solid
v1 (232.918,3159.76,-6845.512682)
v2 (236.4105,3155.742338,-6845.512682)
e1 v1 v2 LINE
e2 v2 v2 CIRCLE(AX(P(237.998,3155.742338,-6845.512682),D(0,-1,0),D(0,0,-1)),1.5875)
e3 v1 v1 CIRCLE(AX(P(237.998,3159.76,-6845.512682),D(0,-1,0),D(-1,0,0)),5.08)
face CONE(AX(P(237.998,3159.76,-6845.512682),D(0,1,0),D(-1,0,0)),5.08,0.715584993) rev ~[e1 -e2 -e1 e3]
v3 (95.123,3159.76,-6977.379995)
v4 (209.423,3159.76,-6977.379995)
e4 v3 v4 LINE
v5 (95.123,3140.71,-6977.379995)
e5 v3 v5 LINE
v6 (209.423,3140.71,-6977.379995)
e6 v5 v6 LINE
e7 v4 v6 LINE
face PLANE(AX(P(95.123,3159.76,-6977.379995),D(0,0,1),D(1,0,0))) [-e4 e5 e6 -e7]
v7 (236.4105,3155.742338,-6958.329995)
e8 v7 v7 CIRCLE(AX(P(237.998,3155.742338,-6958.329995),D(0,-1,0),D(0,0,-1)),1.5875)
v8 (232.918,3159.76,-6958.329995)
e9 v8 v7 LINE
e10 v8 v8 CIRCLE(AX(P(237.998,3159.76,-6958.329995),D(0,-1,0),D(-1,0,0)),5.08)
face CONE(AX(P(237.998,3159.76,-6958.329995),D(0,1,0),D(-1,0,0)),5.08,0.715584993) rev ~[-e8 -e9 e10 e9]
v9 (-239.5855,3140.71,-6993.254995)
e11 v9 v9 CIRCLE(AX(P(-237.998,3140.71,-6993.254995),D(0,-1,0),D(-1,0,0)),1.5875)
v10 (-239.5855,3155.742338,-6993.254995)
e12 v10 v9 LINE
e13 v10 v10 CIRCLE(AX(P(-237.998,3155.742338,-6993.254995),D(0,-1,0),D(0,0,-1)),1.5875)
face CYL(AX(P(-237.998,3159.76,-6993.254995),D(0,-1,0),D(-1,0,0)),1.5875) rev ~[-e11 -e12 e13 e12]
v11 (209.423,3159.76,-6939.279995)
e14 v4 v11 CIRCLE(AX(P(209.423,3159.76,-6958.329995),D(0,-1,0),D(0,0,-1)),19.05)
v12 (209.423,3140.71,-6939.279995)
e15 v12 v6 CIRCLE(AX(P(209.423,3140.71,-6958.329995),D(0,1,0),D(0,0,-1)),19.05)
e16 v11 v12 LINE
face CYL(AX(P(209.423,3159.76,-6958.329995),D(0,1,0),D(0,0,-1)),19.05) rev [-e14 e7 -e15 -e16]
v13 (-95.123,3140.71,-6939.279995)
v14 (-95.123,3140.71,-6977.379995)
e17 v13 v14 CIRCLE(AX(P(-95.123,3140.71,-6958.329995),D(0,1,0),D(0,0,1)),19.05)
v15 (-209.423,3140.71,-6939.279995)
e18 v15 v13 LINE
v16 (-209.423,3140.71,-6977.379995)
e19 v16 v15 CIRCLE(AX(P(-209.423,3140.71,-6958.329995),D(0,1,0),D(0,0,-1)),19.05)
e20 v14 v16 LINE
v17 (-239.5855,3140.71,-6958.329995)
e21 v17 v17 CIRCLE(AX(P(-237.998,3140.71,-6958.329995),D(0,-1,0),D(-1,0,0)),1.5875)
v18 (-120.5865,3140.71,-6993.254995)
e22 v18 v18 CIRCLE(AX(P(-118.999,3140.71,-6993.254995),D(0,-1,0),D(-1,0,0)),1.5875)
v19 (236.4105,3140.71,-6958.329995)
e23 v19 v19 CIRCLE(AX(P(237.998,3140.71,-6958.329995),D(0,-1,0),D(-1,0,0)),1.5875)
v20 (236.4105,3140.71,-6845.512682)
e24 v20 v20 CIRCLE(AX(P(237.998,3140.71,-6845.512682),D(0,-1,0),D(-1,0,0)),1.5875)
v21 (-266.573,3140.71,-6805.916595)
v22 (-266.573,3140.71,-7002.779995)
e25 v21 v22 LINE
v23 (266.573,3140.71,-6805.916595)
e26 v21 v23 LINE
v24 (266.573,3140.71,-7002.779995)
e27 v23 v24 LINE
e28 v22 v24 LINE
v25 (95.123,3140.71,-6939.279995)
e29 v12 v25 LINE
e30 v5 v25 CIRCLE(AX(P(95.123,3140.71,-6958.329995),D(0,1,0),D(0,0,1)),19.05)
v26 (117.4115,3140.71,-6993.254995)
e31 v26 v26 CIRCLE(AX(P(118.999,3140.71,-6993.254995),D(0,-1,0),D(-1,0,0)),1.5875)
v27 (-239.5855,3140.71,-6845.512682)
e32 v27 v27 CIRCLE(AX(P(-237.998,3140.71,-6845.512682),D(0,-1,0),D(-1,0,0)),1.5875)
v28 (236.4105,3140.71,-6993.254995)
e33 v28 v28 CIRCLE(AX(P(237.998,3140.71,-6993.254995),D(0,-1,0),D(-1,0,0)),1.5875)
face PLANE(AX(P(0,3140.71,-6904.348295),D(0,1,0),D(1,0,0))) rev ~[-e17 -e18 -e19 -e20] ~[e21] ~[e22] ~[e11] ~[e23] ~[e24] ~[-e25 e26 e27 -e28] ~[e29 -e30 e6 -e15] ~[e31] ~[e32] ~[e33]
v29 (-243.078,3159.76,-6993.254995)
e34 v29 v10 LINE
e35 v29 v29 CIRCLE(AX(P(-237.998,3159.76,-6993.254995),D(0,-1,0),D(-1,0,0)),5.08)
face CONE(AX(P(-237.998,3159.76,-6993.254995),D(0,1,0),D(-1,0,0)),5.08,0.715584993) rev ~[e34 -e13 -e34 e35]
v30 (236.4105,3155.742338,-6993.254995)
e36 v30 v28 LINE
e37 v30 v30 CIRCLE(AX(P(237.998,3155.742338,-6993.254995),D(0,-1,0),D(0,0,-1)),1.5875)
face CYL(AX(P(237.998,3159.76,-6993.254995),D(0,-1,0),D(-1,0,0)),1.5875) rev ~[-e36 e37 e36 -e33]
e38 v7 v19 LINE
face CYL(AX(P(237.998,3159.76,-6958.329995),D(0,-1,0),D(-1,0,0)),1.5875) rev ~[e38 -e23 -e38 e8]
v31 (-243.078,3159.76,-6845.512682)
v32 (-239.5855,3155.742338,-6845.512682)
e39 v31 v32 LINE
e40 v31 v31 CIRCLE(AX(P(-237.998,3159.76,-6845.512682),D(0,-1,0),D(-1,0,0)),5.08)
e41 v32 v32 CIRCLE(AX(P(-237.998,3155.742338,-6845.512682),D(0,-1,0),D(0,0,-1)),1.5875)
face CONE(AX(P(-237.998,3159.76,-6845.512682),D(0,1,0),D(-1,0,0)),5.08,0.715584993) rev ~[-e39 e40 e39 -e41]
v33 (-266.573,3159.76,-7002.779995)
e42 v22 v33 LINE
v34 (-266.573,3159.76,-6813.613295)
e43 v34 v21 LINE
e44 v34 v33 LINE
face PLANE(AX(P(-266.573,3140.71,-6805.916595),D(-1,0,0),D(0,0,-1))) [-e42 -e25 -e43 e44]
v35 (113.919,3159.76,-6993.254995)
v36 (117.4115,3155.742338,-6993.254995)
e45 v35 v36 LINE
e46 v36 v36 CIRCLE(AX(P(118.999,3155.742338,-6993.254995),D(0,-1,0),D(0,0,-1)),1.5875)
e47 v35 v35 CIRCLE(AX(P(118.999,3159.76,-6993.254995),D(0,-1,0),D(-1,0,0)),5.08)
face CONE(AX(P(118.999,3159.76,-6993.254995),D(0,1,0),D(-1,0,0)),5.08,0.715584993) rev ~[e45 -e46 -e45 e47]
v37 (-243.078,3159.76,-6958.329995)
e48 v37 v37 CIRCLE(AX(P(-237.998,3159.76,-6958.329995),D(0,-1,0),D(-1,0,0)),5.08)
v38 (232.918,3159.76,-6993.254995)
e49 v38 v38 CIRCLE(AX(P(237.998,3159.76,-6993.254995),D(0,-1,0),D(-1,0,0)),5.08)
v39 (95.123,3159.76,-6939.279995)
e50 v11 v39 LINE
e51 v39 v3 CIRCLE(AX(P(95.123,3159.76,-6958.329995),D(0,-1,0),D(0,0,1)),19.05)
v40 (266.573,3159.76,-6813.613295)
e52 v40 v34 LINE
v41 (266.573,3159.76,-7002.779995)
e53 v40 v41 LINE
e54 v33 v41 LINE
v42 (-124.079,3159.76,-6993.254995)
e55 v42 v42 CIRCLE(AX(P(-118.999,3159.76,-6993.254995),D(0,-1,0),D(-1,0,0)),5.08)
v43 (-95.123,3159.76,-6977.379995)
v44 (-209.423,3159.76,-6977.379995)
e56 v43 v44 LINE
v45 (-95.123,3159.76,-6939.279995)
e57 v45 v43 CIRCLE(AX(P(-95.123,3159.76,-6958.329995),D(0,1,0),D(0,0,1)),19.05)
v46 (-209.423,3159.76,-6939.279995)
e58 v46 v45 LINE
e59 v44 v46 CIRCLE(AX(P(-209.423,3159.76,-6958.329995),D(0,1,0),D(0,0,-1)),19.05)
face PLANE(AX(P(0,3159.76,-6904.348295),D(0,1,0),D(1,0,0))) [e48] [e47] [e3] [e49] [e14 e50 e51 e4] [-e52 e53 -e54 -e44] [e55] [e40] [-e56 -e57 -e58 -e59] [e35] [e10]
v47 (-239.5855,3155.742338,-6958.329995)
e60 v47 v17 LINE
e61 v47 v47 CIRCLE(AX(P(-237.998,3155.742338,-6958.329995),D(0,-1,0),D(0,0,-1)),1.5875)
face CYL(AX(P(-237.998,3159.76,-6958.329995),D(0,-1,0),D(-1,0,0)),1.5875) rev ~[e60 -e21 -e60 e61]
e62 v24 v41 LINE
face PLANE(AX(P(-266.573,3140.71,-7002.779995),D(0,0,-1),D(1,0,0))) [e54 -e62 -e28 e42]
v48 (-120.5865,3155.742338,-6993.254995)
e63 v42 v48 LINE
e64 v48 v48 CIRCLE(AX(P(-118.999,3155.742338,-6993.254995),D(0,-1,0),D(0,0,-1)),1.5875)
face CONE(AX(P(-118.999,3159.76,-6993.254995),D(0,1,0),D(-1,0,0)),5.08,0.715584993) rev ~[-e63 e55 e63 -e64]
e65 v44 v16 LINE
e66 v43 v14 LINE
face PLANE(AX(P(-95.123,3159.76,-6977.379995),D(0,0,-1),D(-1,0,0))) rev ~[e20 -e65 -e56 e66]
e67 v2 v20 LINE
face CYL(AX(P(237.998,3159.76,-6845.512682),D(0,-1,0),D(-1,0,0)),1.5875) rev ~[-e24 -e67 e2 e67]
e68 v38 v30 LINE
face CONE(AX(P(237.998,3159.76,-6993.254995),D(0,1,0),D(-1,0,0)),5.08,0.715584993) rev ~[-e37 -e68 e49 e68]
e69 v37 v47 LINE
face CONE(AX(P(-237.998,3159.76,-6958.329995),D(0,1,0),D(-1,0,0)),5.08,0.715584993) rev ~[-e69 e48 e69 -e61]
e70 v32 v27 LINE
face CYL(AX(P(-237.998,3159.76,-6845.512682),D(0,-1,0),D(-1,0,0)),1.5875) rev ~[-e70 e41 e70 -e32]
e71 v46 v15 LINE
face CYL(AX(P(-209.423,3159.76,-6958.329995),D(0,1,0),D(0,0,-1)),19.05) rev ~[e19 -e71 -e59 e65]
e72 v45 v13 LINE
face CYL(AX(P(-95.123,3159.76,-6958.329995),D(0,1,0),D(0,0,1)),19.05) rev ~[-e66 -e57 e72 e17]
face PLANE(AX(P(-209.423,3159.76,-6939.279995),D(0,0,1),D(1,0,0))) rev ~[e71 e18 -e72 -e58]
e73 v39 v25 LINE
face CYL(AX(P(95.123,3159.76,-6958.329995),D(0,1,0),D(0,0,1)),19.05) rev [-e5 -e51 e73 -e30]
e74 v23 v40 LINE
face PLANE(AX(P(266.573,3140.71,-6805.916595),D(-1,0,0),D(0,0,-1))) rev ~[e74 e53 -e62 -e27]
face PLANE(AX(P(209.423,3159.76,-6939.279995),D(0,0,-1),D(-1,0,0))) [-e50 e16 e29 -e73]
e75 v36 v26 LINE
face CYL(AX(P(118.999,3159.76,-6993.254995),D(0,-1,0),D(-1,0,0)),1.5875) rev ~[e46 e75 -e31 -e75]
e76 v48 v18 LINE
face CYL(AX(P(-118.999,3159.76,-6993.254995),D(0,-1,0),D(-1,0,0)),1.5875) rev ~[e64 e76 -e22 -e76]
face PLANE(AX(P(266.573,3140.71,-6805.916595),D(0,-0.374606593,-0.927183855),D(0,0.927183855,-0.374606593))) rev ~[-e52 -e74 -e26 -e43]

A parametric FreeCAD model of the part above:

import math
import FreeCAD as App
import Part
import Sketcher

V = App.Vector
Q = App.Units.Quantity

doc = App.newDocument("Part")
body = doc.addObject("PartDesign::Body", "Body")

sketch1 = body.newObject("Sketcher::SketchObject", "Sketch")
sketch1.AttachmentSupport = (doc.getObject("XZ_Plane"), [""])
sketch1.MapMode = "FlatFace"
sketch1.AttachmentOffset = App.Placement(V(0, 0, -123.65 * 25.4), App.Rotation())
sketch1.addGeometry(Part.LineSegment(V(-267, -7003, 0), V(-267, -6806, 0)), False)
sketch1.addGeometry(Part.LineSegment(V(-267, -6806, 0), V(267, -6806, 0)), False)
sketch1.addGeometry(Part.LineSegment(V(267, -6806, 0), V(267, -7003, 0)), False)
sketch1.addGeometry(Part.LineSegment(V(267, -7003, 0), V(-267, -7003, 0)), False)
sketch1.addConstraint(Sketcher.Constraint("Coincident", 0, 2, 1, 1))
sketch1.addConstraint(Sketcher.Constraint("Coincident", 1, 2, 2, 1))
sketch1.addConstraint(Sketcher.Constraint("Coincident", 2, 2, 3, 1))
sketch1.addConstraint(Sketcher.Constraint("Coincident", 3, 2, 0, 1))
sketch1.addConstraint(Sketcher.Constraint("Vertical", 0))
sketch1.addConstraint(Sketcher.Constraint("Horizontal", 1))
sketch1.addConstraint(Sketcher.Constraint("Vertical", 2))
sketch1.addConstraint(Sketcher.Constraint("Horizontal", 3))
sketch1.addConstraint(Sketcher.Constraint("DistanceX", 1, 1, 1, 2, Q("20.99 in")))
sketch1.addConstraint(Sketcher.Constraint("DistanceY", 2, 2, -1, 1, Q("275.6999998 in")))
sketch1.addConstraint(Sketcher.Constraint("DistanceX", 0, 2, -1, 1, Q("10.495 in")))
sketch1.addConstraint(Sketcher.Constraint("DistanceY", 0, 1, 0, 2, Q("196.8634 mm")))
pad1 = body.newObject("PartDesign::Pad", "Pad")
pad1.Profile = sketch1
pad1.Length = Q("0.75 in")
pad1.Reversed = True

sketch2 = body.newObject("Sketcher::SketchObject", "Sketch001")
sketch2.AttachmentSupport = (doc.getObject("YZ_Plane"), [""])
sketch2.MapMode = "FlatFace"
sketch2.AttachmentOffset = App.Placement(V(0, 0, 10.495 * 25.4), App.Rotation())
sketch2.addGeometry(Part.LineSegment(V(3141, -6806, 0), V(3160, -6814, 0)), False)
sketch2.addGeometry(Part.LineSegment(V(3160, -6814, 0), V(3160, -6806, 0)), False)
sketch2.addGeometry(Part.LineSegment(V(3160, -6806, 0), V(3141, -6806, 0)), False)
sketch2.addConstraint(Sketcher.Constraint("Coincident", 0, 2, 1, 1))
sketch2.addConstraint(Sketcher.Constraint("Coincident", 1, 2, 2, 1))
sketch2.addConstraint(Sketcher.Constraint("Coincident", 2, 2, 0, 1))
sketch2.addConstraint(Sketcher.Constraint("Vertical", 1))
sketch2.addConstraint(Sketcher.Constraint("Horizontal", 2))
sketch2.addConstraint(Sketcher.Constraint("Angle", 0, Q("-22 deg")))
sketch2.addConstraint(Sketcher.Constraint("DistanceX", 2, 2, 2, 1, Q("0.75 in")))
sketch2.addConstraint(Sketcher.Constraint("DistanceX", -1, 1, 0, 2, Q("124.4 in")))
sketch2.addConstraint(Sketcher.Constraint("DistanceY", 0, 2, -1, 1, Q("6813.613295 mm")))
pocket1 = body.newObject("PartDesign::Pocket", "Pocket")
pocket1.Profile = sketch2
pocket1.Type = "ThroughAll"

sketch3 = body.newObject("Sketcher::SketchObject", "Sketch002")
sketch3.AttachmentSupport = (doc.getObject("XZ_Plane"), [""])
sketch3.MapMode = "FlatFace"
sketch3.AttachmentOffset = App.Placement(V(0, 0, -124.4 * 25.4), App.Rotation())
sketch3.addGeometry(Part.LineSegment(V(95, -6939, 0), V(209, -6939, 0)), False)
sketch3.addGeometry(Part.ArcOfCircle(Part.Circle(V(209, -6958, 0), V(0, 0, 1), 19), math.radians(-90), math.radians(90)), False)
sketch3.addGeometry(Part.LineSegment(V(209, -6977, 0), V(95, -6977, 0)), False)
sketch3.addGeometry(Part.ArcOfCircle(Part.Circle(V(95, -6958, 0), V(0, 0, 1), 19), math.radians(90), math.radians(270)), False)
sketch3.addGeometry(Part.LineSegment(V(-209, -6939, 0), V(-95, -6939, 0)), False)
sketch3.addGeometry(Part.ArcOfCircle(Part.Circle(V(-95, -6958, 0), V(0, 0, 1), 19), math.radians(-90), math.radians(90)), False)
sketch3.addGeometry(Part.LineSegment(V(-95, -6977, 0), V(-209, -6977, 0)), False)
sketch3.addGeometry(Part.ArcOfCircle(Part.Circle(V(-209, -6958, 0), V(0, 0, 1), 19), math.radians(90), math.radians(270)), False)
sketch3.addConstraint(Sketcher.Constraint("Tangent", 0, 2, 1, 2))
sketch3.addConstraint(Sketcher.Constraint("Tangent", 1, 1, 2, 1))
sketch3.addConstraint(Sketcher.Constraint("Tangent", 2, 2, 3, 2))
sketch3.addConstraint(Sketcher.Constraint("Tangent", 3, 1, 0, 1))
sketch3.addConstraint(Sketcher.Constraint("Tangent", 4, 2, 5, 2))
sketch3.addConstraint(Sketcher.Constraint("Tangent", 5, 1, 6, 1))
sketch3.addConstraint(Sketcher.Constraint("Tangent", 6, 2, 7, 2))
sketch3.addConstraint(Sketcher.Constraint("Tangent", 7, 1, 4, 1))
sketch3.addConstraint(Sketcher.Constraint("Horizontal", 0))
sketch3.addConstraint(Sketcher.Constraint("Horizontal", 2))
sketch3.addConstraint(Sketcher.Constraint("Horizontal", 4))
sketch3.addConstraint(Sketcher.Constraint("Horizontal", 6))
sketch3.addConstraint(Sketcher.Constraint("Equal", 3, 5))
sketch3.addConstraint(Sketcher.Constraint("Symmetric", 3, 3, 5, 3, -2))
sketch3.addConstraint(Sketcher.Constraint("Equal", 2, 4))
sketch3.addConstraint(Sketcher.Constraint("Radius", 1, Q("0.75 in")))
sketch3.addConstraint(Sketcher.Constraint("DistanceX", 0, 1, 0, 2, Q("4.5 in")))
sketch3.addConstraint(Sketcher.Constraint("DistanceY", 0, 2, -1, 1, Q("273.1999998 in")))
sketch3.addConstraint(Sketcher.Constraint("DistanceX", 5, 3, 3, 3, Q("7.49 in")))
pocket2 = body.newObject("PartDesign::Pocket", "Pocket001")
pocket2.Profile = sketch3
pocket2.Type = "ThroughAll"
pocket2.Reversed = True

sketch4 = body.newObject("Sketcher::SketchObject", "Sketch003")
sketch4.AttachmentSupport = (doc.getObject("XZ_Plane"), [""])
sketch4.MapMode = "FlatFace"
sketch4.AttachmentOffset = App.Placement(V(0, 0, -124.4 * 25.4), App.Rotation())
sketch4.addGeometry(Part.Circle(V(-119, -6993.3, 0), V(0, 0, 1), 1.6), False)
sketch4.addGeometry(Part.Circle(V(238, -6993.3, 0), V(0, 0, 1), 1.6), False)
sketch4.addGeometry(Part.Circle(V(238, -6958.3, 0), V(0, 0, 1), 1.6), False)
sketch4.addGeometry(Part.Circle(V(238, -6845.5, 0), V(0, 0, 1), 1.6), False)
sketch4.addGeometry(Part.Circle(V(-238, -6993.3, 0), V(0, 0, 1), 1.6), False)
sketch4.addGeometry(Part.Circle(V(-238, -6958.3, 0), V(0, 0, 1), 1.6), False)
sketch4.addGeometry(Part.Circle(V(-238, -6845.5, 0), V(0, 0, 1), 1.6), False)
sketch4.addGeometry(Part.Circle(V(119, -6993.3, 0), V(0, 0, 1), 1.6), False)
sketch4.addConstraint(Sketcher.Constraint("Equal", 0, 1))
sketch4.addConstraint(Sketcher.Constraint("Equal", 1, 2))
sketch4.addConstraint(Sketcher.Constraint("Equal", 2, 3))
sketch4.addConstraint(Sketcher.Constraint("Equal", 3, 4))
sketch4.addConstraint(Sketcher.Constraint("Equal", 4, 5))
sketch4.addConstraint(Sketcher.Constraint("Equal", 5, 6))
sketch4.addConstraint(Sketcher.Constraint("Equal", 6, 7))
sketch4.addConstraint(Sketcher.Constraint("Symmetric", 1, 3, 4, 3, -2))
sketch4.addConstraint(Sketcher.Constraint("Symmetric", 2, 3, 5, 3, -2))
sketch4.addConstraint(Sketcher.Constraint("Symmetric", 3, 3, 6, 3, -2))
sketch4.addConstraint(Sketcher.Constraint("Symmetric", 0, 3, 7, 3, -2))
sketch4.addConstraint(Sketcher.Constraint("Horizontal", 0, 3, 1, 3))
sketch4.addConstraint(Sketcher.Constraint("Vertical", 1, 3, 2, 3))
sketch4.addConstraint(Sketcher.Constraint("Vertical", 2, 3, 3, 3))
sketch4.addConstraint(Sketcher.Constraint("Diameter", 0, Q("0.125 in")))
sketch4.addConstraint(Sketcher.Constraint("DistanceX", -1, 1, 1, 3, Q("9.37 in")))
sketch4.addConstraint(Sketcher.Constraint("DistanceY", 2, 3, -1, 1, Q("273.9499998 in")))
sketch4.addConstraint(Sketcher.Constraint("DistanceX", 0, 3, 7, 3, Q("9.37 in")))
sketch4.addConstraint(Sketcher.Constraint("DistanceY", 0, 3, -1, 1, Q("275.3249998 in")))
sketch4.addConstraint(Sketcher.Constraint("DistanceY", 3, 3, -1, 1, Q("6845.512682 mm")))
doc.recompute()
hole = body.newObject("PartDesign::Hole", "Hole")
hole.Profile = sketch4
hole.ThreadType = "None"
hole.Diameter = Q("0.125 in")
hole.DepthType = "Dimension"
hole.Depth = Q("1.5 in")
hole.DrillPoint = "Angled"
hole.DrillPointAngle = 118
hole.HoleCutType = "Countersink"
hole.HoleCutDiameter = Q("0.4 in")
hole.HoleCutCountersinkAngle = 82
hole.Reversed = True

doc.recompute()
